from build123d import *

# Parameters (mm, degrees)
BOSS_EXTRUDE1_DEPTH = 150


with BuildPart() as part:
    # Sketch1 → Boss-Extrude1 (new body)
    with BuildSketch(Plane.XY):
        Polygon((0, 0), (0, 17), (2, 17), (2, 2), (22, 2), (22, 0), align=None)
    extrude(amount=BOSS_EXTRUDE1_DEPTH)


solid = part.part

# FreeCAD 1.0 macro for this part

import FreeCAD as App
import Part
import Sketcher

doc = App.newDocument("Part")
body = doc.addObject("PartDesign::Body", "Body")

# Sketch on XY plane
sketch1 = doc.addObject("Sketcher::SketchObject", "Sketch")
body.addObject(sketch1)
sketch1.AttachmentSupport = (doc.XY_Plane, [""])
sketch1.MapMode = "FlatFace"
sketch1.addGeometry(Part.LineSegment(App.Vector(0, 17, 0), App.Vector(0, 0, 0)), False)
sketch1.addGeometry(Part.LineSegment(App.Vector(0, 0, 0), App.Vector(22, 0, 0)), False)
sketch1.addGeometry(Part.LineSegment(App.Vector(22, 0, 0), App.Vector(22, 2, 0)), False)
sketch1.addGeometry(Part.LineSegment(App.Vector(22, 2, 0), App.Vector(2, 2, 0)), False)
sketch1.addGeometry(Part.LineSegment(App.Vector(2, 2, 0), App.Vector(2, 17, 0)), False)
sketch1.addGeometry(Part.LineSegment(App.Vector(2, 17, 0), App.Vector(0, 17, 0)), False)
sketch1.addConstraint(Sketcher.Constraint("Coincident", 0, 2, 1, 1))
sketch1.addConstraint(Sketcher.Constraint("Coincident", 1, 2, 2, 1))
sketch1.addConstraint(Sketcher.Constraint("Coincident", 2, 2, 3, 1))
sketch1.addConstraint(Sketcher.Constraint("Coincident", 3, 2, 4, 1))
sketch1.addConstraint(Sketcher.Constraint("Coincident", 4, 2, 5, 1))
sketch1.addConstraint(Sketcher.Constraint("Coincident", 5, 2, 0, 1))
sketch1.addConstraint(Sketcher.Constraint("Vertical", 0))
sketch1.addConstraint(Sketcher.Constraint("Horizontal", 1))
sketch1.addConstraint(Sketcher.Constraint("Vertical", 2))
sketch1.addConstraint(Sketcher.Constraint("Horizontal", 3))
sketch1.addConstraint(Sketcher.Constraint("Vertical", 4))
sketch1.addConstraint(Sketcher.Constraint("Horizontal", 5))
sketch1.addConstraint(Sketcher.Constraint("Coincident", 0, 2, -1, 1))
sketch1.addConstraint(Sketcher.Constraint("Equal", 5, 2))
sketch1.addConstraint(Sketcher.Constraint("DistanceX", 1, 1, 1, 2, 22.0))
sketch1.addConstraint(Sketcher.Constraint("DistanceX", 3, 2, 3, 1, 20.0))
sketch1.addConstraint(Sketcher.Constraint("DistanceY", 0, 2, 0, 1, 17.0))
pad1 = doc.addObject("PartDesign::Pad", "Pad")
body.addObject(pad1)
pad1.Profile = sketch1
pad1.Length = 150

doc.recompute()
